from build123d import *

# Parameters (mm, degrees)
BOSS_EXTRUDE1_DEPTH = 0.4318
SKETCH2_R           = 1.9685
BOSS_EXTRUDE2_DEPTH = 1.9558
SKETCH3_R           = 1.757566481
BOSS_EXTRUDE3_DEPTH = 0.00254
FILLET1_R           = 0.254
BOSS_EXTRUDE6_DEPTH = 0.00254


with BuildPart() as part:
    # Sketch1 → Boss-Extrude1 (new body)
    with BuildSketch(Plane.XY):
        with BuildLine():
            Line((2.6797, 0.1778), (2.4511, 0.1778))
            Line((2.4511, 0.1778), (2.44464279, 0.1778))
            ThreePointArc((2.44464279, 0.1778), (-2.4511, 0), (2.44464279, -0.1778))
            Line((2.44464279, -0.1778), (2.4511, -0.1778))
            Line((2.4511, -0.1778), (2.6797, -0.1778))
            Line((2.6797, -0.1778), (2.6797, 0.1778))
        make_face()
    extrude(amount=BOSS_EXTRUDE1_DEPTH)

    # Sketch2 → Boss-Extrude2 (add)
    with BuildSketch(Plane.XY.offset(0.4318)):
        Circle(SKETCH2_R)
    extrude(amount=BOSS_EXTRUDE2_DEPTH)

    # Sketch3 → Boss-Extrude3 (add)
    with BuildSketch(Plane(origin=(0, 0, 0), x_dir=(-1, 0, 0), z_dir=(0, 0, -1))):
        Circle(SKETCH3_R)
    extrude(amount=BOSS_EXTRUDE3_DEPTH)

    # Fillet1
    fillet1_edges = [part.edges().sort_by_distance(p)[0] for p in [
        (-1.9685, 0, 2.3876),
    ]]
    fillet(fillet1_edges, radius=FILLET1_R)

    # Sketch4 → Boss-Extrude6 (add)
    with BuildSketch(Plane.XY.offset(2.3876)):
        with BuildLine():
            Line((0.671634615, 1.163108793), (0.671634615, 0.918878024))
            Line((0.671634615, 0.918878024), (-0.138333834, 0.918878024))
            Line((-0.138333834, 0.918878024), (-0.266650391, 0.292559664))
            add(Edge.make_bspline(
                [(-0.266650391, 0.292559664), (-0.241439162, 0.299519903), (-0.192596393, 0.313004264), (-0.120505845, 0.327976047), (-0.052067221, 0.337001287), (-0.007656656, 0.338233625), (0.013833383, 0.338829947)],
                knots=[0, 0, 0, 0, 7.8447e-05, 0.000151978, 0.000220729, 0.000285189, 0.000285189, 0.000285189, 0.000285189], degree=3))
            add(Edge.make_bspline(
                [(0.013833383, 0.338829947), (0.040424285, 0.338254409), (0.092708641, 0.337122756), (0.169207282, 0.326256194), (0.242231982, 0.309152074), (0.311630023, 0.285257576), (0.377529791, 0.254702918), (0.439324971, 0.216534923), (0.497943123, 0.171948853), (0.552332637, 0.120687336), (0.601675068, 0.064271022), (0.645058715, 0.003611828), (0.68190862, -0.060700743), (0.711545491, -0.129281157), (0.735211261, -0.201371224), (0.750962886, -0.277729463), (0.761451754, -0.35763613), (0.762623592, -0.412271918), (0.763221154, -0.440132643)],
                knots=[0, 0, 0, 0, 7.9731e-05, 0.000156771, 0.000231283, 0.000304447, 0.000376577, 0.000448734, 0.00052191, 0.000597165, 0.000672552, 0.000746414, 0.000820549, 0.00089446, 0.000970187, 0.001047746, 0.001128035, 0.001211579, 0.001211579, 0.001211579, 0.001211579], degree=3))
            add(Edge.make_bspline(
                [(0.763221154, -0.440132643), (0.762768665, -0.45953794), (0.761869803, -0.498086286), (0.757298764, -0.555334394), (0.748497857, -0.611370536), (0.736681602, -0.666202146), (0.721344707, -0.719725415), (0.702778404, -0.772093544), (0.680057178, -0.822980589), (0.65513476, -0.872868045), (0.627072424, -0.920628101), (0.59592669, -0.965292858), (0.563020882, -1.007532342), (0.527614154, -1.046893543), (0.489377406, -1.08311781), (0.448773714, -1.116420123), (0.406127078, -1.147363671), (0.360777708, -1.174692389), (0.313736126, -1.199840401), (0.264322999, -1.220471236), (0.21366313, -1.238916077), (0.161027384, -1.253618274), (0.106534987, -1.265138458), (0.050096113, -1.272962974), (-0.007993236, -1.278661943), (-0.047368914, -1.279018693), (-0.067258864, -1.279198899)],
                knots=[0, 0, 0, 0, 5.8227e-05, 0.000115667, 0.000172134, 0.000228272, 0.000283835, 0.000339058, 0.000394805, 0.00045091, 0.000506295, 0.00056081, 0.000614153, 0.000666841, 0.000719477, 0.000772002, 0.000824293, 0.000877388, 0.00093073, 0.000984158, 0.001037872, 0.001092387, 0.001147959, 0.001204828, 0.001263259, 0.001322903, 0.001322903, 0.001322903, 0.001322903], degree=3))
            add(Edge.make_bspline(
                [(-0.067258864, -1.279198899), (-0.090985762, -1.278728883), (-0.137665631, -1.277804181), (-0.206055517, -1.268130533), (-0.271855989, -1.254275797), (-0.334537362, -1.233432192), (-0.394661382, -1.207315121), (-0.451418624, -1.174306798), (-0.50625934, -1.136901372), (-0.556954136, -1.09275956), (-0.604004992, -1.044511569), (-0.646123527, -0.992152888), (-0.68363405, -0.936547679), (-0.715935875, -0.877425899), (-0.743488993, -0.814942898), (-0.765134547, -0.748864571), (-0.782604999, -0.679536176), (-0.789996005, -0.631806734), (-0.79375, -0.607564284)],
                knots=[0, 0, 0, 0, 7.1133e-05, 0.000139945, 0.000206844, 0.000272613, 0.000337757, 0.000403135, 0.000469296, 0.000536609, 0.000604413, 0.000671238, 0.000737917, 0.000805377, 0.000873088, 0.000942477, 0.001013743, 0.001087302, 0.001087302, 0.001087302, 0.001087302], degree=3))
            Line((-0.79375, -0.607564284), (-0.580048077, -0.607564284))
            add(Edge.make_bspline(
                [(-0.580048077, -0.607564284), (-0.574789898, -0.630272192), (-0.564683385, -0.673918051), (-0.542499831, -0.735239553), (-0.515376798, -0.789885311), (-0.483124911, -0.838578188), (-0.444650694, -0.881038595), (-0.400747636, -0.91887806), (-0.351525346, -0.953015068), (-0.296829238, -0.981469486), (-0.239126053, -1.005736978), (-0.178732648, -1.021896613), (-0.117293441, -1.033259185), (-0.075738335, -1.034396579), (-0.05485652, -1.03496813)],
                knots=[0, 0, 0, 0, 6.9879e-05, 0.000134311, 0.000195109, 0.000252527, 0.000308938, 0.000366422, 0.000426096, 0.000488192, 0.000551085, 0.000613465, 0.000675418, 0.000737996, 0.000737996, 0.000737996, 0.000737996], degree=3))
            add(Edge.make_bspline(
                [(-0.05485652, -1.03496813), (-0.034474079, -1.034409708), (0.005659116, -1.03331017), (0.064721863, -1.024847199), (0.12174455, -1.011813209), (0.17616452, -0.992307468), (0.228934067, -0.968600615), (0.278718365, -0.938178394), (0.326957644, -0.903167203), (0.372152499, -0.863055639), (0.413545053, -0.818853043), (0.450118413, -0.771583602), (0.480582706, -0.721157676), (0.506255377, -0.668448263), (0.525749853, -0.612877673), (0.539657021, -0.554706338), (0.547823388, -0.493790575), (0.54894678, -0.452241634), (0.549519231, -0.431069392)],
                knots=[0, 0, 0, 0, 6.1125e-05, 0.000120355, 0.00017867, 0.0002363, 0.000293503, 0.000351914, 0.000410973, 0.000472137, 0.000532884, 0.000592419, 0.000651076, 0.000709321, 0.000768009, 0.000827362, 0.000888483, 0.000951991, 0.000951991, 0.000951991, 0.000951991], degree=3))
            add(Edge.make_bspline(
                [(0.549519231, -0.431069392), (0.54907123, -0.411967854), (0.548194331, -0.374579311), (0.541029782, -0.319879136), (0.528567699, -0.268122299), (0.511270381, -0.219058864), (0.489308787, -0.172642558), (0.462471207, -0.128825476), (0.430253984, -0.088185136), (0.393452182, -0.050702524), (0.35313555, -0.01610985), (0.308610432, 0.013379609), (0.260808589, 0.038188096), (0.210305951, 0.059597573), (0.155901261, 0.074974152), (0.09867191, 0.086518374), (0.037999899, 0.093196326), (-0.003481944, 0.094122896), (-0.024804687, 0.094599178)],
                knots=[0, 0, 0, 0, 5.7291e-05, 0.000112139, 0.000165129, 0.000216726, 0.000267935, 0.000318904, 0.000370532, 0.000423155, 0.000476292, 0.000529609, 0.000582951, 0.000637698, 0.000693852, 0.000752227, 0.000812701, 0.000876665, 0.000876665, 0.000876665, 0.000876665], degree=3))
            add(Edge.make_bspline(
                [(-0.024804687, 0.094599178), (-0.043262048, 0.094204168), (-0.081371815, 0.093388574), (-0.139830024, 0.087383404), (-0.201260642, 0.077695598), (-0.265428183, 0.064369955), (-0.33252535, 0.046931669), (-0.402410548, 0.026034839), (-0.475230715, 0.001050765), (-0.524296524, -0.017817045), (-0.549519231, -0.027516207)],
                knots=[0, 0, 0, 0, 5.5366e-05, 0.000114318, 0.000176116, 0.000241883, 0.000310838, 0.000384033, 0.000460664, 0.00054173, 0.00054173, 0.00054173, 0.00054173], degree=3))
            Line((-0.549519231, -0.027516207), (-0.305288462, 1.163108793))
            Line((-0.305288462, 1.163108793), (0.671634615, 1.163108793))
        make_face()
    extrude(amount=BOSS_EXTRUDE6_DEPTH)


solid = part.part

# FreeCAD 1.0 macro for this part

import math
import FreeCAD as App
import Part
import Sketcher

V = App.Vector
Q = App.Units.Quantity


def edges_at(feature, points):
    """Names of the edges that pass closest to the given points."""
    edges = feature.Shape.Edges
    near = lambda p: min(range(len(edges)), key=lambda i: edges[i].distToShape(Part.Vertex(*p))[0])
    return sorted({f"Edge{near(p) + 1}" for p in points})

doc = App.newDocument("Part")
params = doc.addObject("Spreadsheet::Sheet", "Params")
for row, (alias, value) in enumerate([
    ("sketch1_height", "0.014 in"),
    ("pad1_length", "0.017 in"),
    ("sketch2_diameter", "0.155 in"),
    ("pad2_length", "0.077 in"),
    ("pad3_length", "0.0001 in"),
    ("fillet_radius", "0.01 in"),
    ("pad4_length", "0.0001 in"),
], start=1):
    params.set(f"A{row}", alias)
    params.set(f"B{row}", "=" + value)
    params.setAlias(f"B{row}", alias)

body = doc.addObject("PartDesign::Body", "Body")

# Sketch on XY plane
sketch1 = doc.addObject("Sketcher::SketchObject", "Sketch")
body.addObject(sketch1)
sketch1.AttachmentSupport = (doc.XY_Plane, [""])
sketch1.MapMode = "FlatFace"
sketch1.addGeometry([
    Part.LineSegment(V(2.68, 0.18, 0), V(2.44, 0.18, 0)),
    Part.ArcOfCircle(Part.Circle(V(0, 0, 0), V(0, 0, 1), 2.45), math.radians(4), math.radians(356)),
    Part.LineSegment(V(2.44, -0.18, 0), V(2.68, -0.18, 0)),
    Part.LineSegment(V(2.68, -0.18, 0), V(2.68, 0.18, 0)),
], False)
sketch1.addConstraint([
    Sketcher.Constraint("Coincident", 0, 2, 1, 1),
    Sketcher.Constraint("Coincident", 1, 2, 2, 1),
    Sketcher.Constraint("Coincident", 2, 2, 3, 1),
    Sketcher.Constraint("Coincident", 3, 2, 0, 1),
    Sketcher.Constraint("Horizontal", 0),
    Sketcher.Constraint("Horizontal", 2),
    Sketcher.Constraint("Vertical", 3),
    Sketcher.Constraint("Coincident", 1, 3, -1, 1),
    Sketcher.Constraint("Vertical", 0, 2, 1, 2),
    Sketcher.Constraint("Radius", 1, Q("0.0965 in")),
    Sketcher.Constraint("DistanceY", 3, 1, 3, 2, Q("0.014 in")),
    Sketcher.Constraint("DistanceX", -1, 1, 2, 2, Q("0.1055 in")),
])
sketch1.setExpression("Constraints[10]", "Params.sketch1_height")
pad1 = doc.addObject("PartDesign::Pad", "Pad")
body.addObject(pad1)
pad1.Profile = sketch1
pad1.setExpression("Length", "Params.pad1_length")

# Sketch on XY plane
sketch2 = doc.addObject("Sketcher::SketchObject", "Sketch001")
body.addObject(sketch2)
sketch2.AttachmentSupport = (doc.XY_Plane, [""])
sketch2.MapMode = "FlatFace"
sketch2.AttachmentOffset = App.Placement(V(0, 0, 0.017 * 25.4), App.Rotation())
sketch2.addGeometry(Part.Circle(V(0, 0, 0), V(0, 0, 1), 2), False)
sketch2.addConstraint([
    Sketcher.Constraint("Coincident", 0, 3, -1, 1),
    Sketcher.Constraint("Diameter", 0, Q("0.155 in")),
])
sketch2.setExpression("Constraints[1]", "Params.sketch2_diameter")
pad2 = doc.addObject("PartDesign::Pad", "Pad001")
body.addObject(pad2)
pad2.Profile = sketch2
pad2.setExpression("Length", "Params.pad2_length")

# Sketch on XY plane
sketch3 = doc.addObject("Sketcher::SketchObject", "Sketch002")
body.addObject(sketch3)
sketch3.AttachmentSupport = (doc.XY_Plane, [""])
sketch3.MapMode = "FlatFace"
sketch3.addGeometry(Part.Circle(V(0, 0, 0), V(0, 0, 1), 1.8), False)
sketch3.addConstraint([
    Sketcher.Constraint("Coincident", 0, 3, -1, 1),
    Sketcher.Constraint("Diameter", 0, 3.515133),
])
pad3 = doc.addObject("PartDesign::Pad", "Pad002")
body.addObject(pad3)
pad3.Profile = sketch3
pad3.setExpression("Length", "Params.pad3_length")
pad3.Reversed = True
doc.recompute()

fillet = doc.addObject("PartDesign::Fillet", "Fillet")
body.addObject(fillet)
fillet.Base = (pad3, edges_at(pad3, [(-1.968, 0, 2.388)]))
fillet.setExpression("Radius", "Params.fillet_radius")

# Sketch on XY plane
sketch4 = doc.addObject("Sketcher::SketchObject", "Sketch003")
body.addObject(sketch4)
sketch4.AttachmentSupport = (doc.XY_Plane, [""])
sketch4.MapMode = "FlatFace"
sketch4.AttachmentOffset = App.Placement(V(0, 0, 0.094 * 25.4), App.Rotation())
sketch4.addGeometry([
    Part.LineSegment(V(0.671635, 0.918878, 0), V(0.671635, 1.163109, 0)),  # 0
    Part.LineSegment(V(0.671635, 1.163109, 0), V(-0.305288, 1.163109, 0)),  # 1
    Part.LineSegment(V(-0.305288, 1.163109, 0), V(-0.549519, -0.027516, 0)),  # 2
    Part.BSplineCurve([V(-0.024805, 0.094599, 0), V(-0.043262, 0.094204, 0), V(-0.081372, 0.093389, 0), V(-0.13983, 0.087383, 0), V(-0.201261, 0.077696, 0), V(-0.265428, 0.06437, 0), V(-0.332525, 0.046932, 0), V(-0.402411, 0.026035, 0), V(-0.475231, 0.001051, 0), V(-0.524297, -0.017817, 0), V(-0.549519, -0.027516, 0)], [4, 1, 1, 1, 1, 1, 1, 1, 4], [0, 0.000055366, 0.000114318, 0.000176116, 0.000241883, 0.000310838, 0.000384033, 0.000460664, 0.00054173], False, 3, [1, 1, 1, 1, 1, 1, 1, 1, 1, 1, 1], False),  # 3
    Part.BSplineCurve([V(0.549519, -0.431069, 0), V(0.549071, -0.411968, 0), V(0.548194, -0.374579, 0), V(0.54103, -0.319879, 0), V(0.528568, -0.268122, 0), V(0.51127, -0.219059, 0), V(0.489309, -0.172643, 0), V(0.462471, -0.128825, 0), V(0.430254, -0.088185, 0), V(0.393452, -0.050703, 0), V(0.353136, -0.01611, 0), V(0.30861, 0.01338, 0), V(0.260809, 0.038188, 0), V(0.210306, 0.059598, 0), V(0.155901, 0.074974, 0), V(0.098672, 0.086518, 0), V(0.038, 0.093196, 0), V(-0.003482, 0.094123, 0), V(-0.024805, 0.094599, 0)], [4, 1, 1, 1, 1, 1, 1, 1, 1, 1, 1, 1, 1, 1, 1, 1, 4], [0, 0.000057291, 0.000112139, 0.000165129, 0.000216726, 0.000267935, 0.000318904, 0.000370532, 0.000423155, 0.000476292, 0.000529609, 0.000582951, 0.000637698, 0.000693852, 0.000752227, 0.000812701, 0.000876665], False, 3, [1, 1, 1, 1, 1, 1, 1, 1, 1, 1, 1, 1, 1, 1, 1, 1, 1, 1, 1], False),  # 4
    Part.BSplineCurve([V(-0.054857, -1.034968, 0), V(-0.034474, -1.03441, 0), V(0.005659, -1.03331, 0), V(0.064722, -1.024847, 0), V(0.121745, -1.011813, 0), V(0.176165, -0.992307, 0), V(0.228934, -0.968601, 0), V(0.278718, -0.938178, 0), V(0.326958, -0.903167, 0), V(0.372152, -0.863056, 0), V(0.413545, -0.818853, 0), V(0.450118, -0.771584, 0), V(0.480583, -0.721158, 0), V(0.506255, -0.668448, 0), V(0.52575, -0.612878, 0), V(0.539657, -0.554706, 0), V(0.547823, -0.493791, 0), V(0.548947, -0.452242, 0), V(0.549519, -0.431069, 0)], [4, 1, 1, 1, 1, 1, 1, 1, 1, 1, 1, 1, 1, 1, 1, 1, 4], [0, 0.000061125, 0.000120355, 0.00017867, 0.0002363, 0.000293503, 0.000351914, 0.000410973, 0.000472137, 0.000532884, 0.000592419, 0.000651076, 0.000709321, 0.000768009, 0.000827362, 0.000888483, 0.000951991], False, 3, [1, 1, 1, 1, 1, 1, 1, 1, 1, 1, 1, 1, 1, 1, 1, 1, 1, 1, 1], False),  # 5
    Part.BSplineCurve([V(-0.580048, -0.607564, 0), V(-0.57479, -0.630272, 0), V(-0.564683, -0.673918, 0), V(-0.5425, -0.73524, 0), V(-0.515377, -0.789885, 0), V(-0.483125, -0.838578, 0), V(-0.444651, -0.881039, 0), V(-0.400748, -0.918878, 0), V(-0.351525, -0.953015, 0), V(-0.296829, -0.981469, 0), V(-0.239126, -1.005737, 0), V(-0.178733, -1.021897, 0), V(-0.117293, -1.033259, 0), V(-0.075738, -1.034397, 0), V(-0.054857, -1.034968, 0)], [4, 1, 1, 1, 1, 1, 1, 1, 1, 1, 1, 1, 4], [0, 0.000069879, 0.000134311, 0.000195109, 0.000252527, 0.000308938, 0.000366422, 0.000426096, 0.000488192, 0.000551085, 0.000613465, 0.000675418, 0.000737996], False, 3, [1, 1, 1, 1, 1, 1, 1, 1, 1, 1, 1, 1, 1, 1, 1], False),  # 6
    Part.LineSegment(V(-0.580048, -0.607564, 0), V(-0.79375, -0.607564, 0)),  # 7
    Part.BSplineCurve([V(-0.067259, -1.279199, 0), V(-0.090986, -1.278729, 0), V(-0.137666, -1.277804, 0), V(-0.206056, -1.268131, 0), V(-0.271856, -1.254276, 0), V(-0.334537, -1.233432, 0), V(-0.394661, -1.207315, 0), V(-0.451419, -1.174307, 0), V(-0.506259, -1.136901, 0), V(-0.556954, -1.09276, 0), V(-0.604005, -1.044512, 0), V(-0.646124, -0.992153, 0), V(-0.683634, -0.936548, 0), V(-0.715936, -0.877426, 0), V(-0.743489, -0.814943, 0), V(-0.765135, -0.748865, 0), V(-0.782605, -0.679536, 0), V(-0.789996, -0.631807, 0), V(-0.79375, -0.607564, 0)], [4, 1, 1, 1, 1, 1, 1, 1, 1, 1, 1, 1, 1, 1, 1, 1, 4], [0, 0.000071133, 0.000139945, 0.000206844, 0.000272613, 0.000337757, 0.000403135, 0.000469296, 0.000536609, 0.000604413, 0.000671238, 0.000737917, 0.000805377, 0.000873088, 0.000942477, 0.001013743, 0.001087302], False, 3, [1, 1, 1, 1, 1, 1, 1, 1, 1, 1, 1, 1, 1, 1, 1, 1, 1, 1, 1], False),  # 8
    Part.BSplineCurve([V(0.763221, -0.440133, 0), V(0.762769, -0.459538, 0), V(0.76187, -0.498086, 0), V(0.757299, -0.555334, 0), V(0.748498, -0.611371, 0), V(0.736682, -0.666202, 0), V(0.721345, -0.719725, 0), V(0.702778, -0.772094, 0), V(0.680057, -0.822981, 0), V(0.655135, -0.872868, 0), V(0.627072, -0.920628, 0), V(0.595927, -0.965293, 0), V(0.563021, -1.007532, 0), V(0.527614, -1.046894, 0), V(0.489377, -1.083118, 0), V(0.448774, -1.11642, 0), V(0.406127, -1.147364, 0), V(0.360778, -1.174692, 0), V(0.313736, -1.19984, 0), V(0.264323, -1.220471, 0), V(0.213663, -1.238916, 0), V(0.161027, -1.253618, 0), V(0.106535, -1.265138, 0), V(0.050096, -1.272963, 0), V(-0.007993, -1.278662, 0), V(-0.047369, -1.279019, 0), V(-0.067259, -1.279199, 0)], [4, 1, 1, 1, 1, 1, 1, 1, 1, 1, 1, 1, 1, 1, 1, 1, 1, 1, 1, 1, 1, 1, 1, 1, 4], [0, 0.000058227, 0.000115667, 0.000172134, 0.000228272, 0.000283835, 0.000339058, 0.000394805, 0.00045091, 0.000506295, 0.00056081, 0.000614153, 0.000666841, 0.000719477, 0.000772002, 0.000824293, 0.000877388, 0.00093073, 0.000984158, 0.001037872, 0.001092387, 0.001147959, 0.001204828, 0.001263259, 0.001322903], False, 3, [1, 1, 1, 1, 1, 1, 1, 1, 1, 1, 1, 1, 1, 1, 1, 1, 1, 1, 1, 1, 1, 1, 1, 1, 1, 1, 1], False),  # 9
    Part.BSplineCurve([V(0.013833, 0.33883, 0), V(0.040424, 0.338254, 0), V(0.092709, 0.337123, 0), V(0.169207, 0.326256, 0), V(0.242232, 0.309152, 0), V(0.31163, 0.285258, 0), V(0.37753, 0.254703, 0), V(0.439325, 0.216535, 0), V(0.497943, 0.171949, 0), V(0.552333, 0.120687, 0), V(0.601675, 0.064271, 0), V(0.645059, 0.003612, 0), V(0.681909, -0.060701, 0), V(0.711545, -0.129281, 0), V(0.735211, -0.201371, 0), V(0.750963, -0.277729, 0), V(0.761452, -0.357636, 0), V(0.762624, -0.412272, 0), V(0.763221, -0.440133, 0)], [4, 1, 1, 1, 1, 1, 1, 1, 1, 1, 1, 1, 1, 1, 1, 1, 4], [0, 0.000079731, 0.000156771, 0.000231283, 0.000304447, 0.000376577, 0.000448734, 0.00052191, 0.000597165, 0.000672552, 0.000746414, 0.000820549, 0.00089446, 0.000970187, 0.001047746, 0.001128035, 0.001211579], False, 3, [1, 1, 1, 1, 1, 1, 1, 1, 1, 1, 1, 1, 1, 1, 1, 1, 1, 1, 1], False),  # 10
    Part.BSplineCurve([V(-0.26665, 0.29256, 0), V(-0.241439, 0.29952, 0), V(-0.192596, 0.313004, 0), V(-0.120506, 0.327976, 0), V(-0.052067, 0.337001, 0), V(-0.007657, 0.338234, 0), V(0.013833, 0.33883, 0)], [4, 1, 1, 1, 4], [0, 0.000078447, 0.000151978, 0.000220729, 0.000285189], False, 3, [1, 1, 1, 1, 1, 1, 1], False),  # 11
    Part.LineSegment(V(-0.26665, 0.29256, 0), V(-0.138334, 0.918878, 0)),  # 12
    Part.LineSegment(V(-0.138334, 0.918878, 0), V(0.671635, 0.918878, 0)),  # 13
], False)
sketch4.addConstraint([
    Sketcher.Constraint("Block", 3),
    Sketcher.Constraint("Block", 4),
    Sketcher.Constraint("Block", 5),
    Sketcher.Constraint("Block", 6),
    Sketcher.Constraint("Block", 8),
    Sketcher.Constraint("Block", 9),
    Sketcher.Constraint("Block", 10),
    Sketcher.Constraint("Block", 11),
    Sketcher.Constraint("Coincident", 0, 2, 1, 1),
    Sketcher.Constraint("Coincident", 1, 2, 2, 1),
    Sketcher.Constraint("Coincident", 2, 2, 3, 2),
    Sketcher.Constraint("Coincident", 6, 1, 7, 1),
    Sketcher.Constraint("Coincident", 7, 2, 8, 2),
    Sketcher.Constraint("Coincident", 11, 1, 12, 1),
    Sketcher.Constraint("Coincident", 12, 2, 13, 1),
    Sketcher.Constraint("Coincident", 13, 2, 0, 1),
    Sketcher.Constraint("Vertical", 0),
    Sketcher.Constraint("Horizontal", 1),
    Sketcher.Constraint("Horizontal", 13),
    Sketcher.Constraint("DistanceY", 2, 2, 1, 2, Q("0.046875 in")),
    Sketcher.Constraint("DistanceX", 13, 1, 13, 2, 0.809968),
    Sketcher.Constraint("DistanceY", 0, 1, 0, 2, 0.244231),
    Sketcher.Constraint("DistanceX", 1, 2, 1, 1, 0.976923),
    Sketcher.Constraint("DistanceX", 1, 2, -1, 1, 0.305288),
])
pad4 = doc.addObject("PartDesign::Pad", "Pad003")
body.addObject(pad4)
pad4.Profile = sketch4
pad4.setExpression("Length", "Params.pad4_length")

doc.recompute()
